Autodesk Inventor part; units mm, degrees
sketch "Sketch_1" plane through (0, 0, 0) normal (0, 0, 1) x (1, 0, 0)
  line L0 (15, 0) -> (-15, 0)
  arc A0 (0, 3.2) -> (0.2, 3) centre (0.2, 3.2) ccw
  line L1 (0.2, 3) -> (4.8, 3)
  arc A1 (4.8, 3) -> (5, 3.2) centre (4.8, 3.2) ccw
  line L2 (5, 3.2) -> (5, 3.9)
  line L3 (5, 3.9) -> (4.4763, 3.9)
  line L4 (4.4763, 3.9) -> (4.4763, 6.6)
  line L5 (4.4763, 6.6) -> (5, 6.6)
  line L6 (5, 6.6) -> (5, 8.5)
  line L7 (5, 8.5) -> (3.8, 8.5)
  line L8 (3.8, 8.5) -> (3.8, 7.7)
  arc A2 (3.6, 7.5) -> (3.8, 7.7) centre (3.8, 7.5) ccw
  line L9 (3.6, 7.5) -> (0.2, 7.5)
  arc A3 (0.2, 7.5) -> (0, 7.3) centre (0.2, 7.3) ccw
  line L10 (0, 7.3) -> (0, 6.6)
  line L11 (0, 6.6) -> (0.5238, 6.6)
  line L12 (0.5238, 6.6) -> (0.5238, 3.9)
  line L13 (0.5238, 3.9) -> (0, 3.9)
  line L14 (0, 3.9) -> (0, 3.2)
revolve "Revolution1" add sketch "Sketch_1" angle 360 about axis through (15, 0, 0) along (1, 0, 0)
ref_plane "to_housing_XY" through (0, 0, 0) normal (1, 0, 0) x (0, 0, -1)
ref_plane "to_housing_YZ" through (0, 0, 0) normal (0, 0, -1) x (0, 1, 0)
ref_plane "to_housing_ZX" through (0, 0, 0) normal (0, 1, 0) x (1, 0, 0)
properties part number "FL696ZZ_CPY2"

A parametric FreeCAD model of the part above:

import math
import FreeCAD as App
import Part
import Sketcher
from FreeCAD import Vector
Q = App.Units.Quantity

doc = App.newDocument("Part")
body = doc.addObject("PartDesign::Body", "Body")

# Sketch on XY plane
sketch1 = body.newObject("Sketcher::SketchObject", "Sketch")
sketch1.AttachmentSupport = (doc.getObject("XY_Plane"), [""])
sketch1.MapMode = "FlatFace"
sketch1.addGeometry([
    Part.LineSegment(Vector(0, 3.9, 0), Vector(0, 3.2, 0)),  # 0
    Part.ArcOfCircle(Part.Circle(Vector(0.2, 3.2, 0), Vector(0, 0, 1), 0.2), math.radians(180), math.radians(270)),  # 1
    Part.LineSegment(Vector(0.2, 3, 0), Vector(4.8, 3, 0)),  # 2
    Part.ArcOfCircle(Part.Circle(Vector(4.8, 3.2, 0), Vector(0, 0, 1), 0.2), math.radians(-90), math.radians(0)),  # 3
    Part.LineSegment(Vector(5, 3.2, 0), Vector(5, 3.9, 0)),  # 4
    Part.LineSegment(Vector(5, 3.9, 0), Vector(4.48, 3.9, 0)),  # 5
    Part.LineSegment(Vector(4.48, 3.9, 0), Vector(4.48, 6.6, 0)),  # 6
    Part.LineSegment(Vector(4.48, 6.6, 0), Vector(5, 6.6, 0)),  # 7
    Part.LineSegment(Vector(5, 6.6, 0), Vector(5, 8.5, 0)),  # 8
    Part.LineSegment(Vector(5, 8.5, 0), Vector(3.8, 8.5, 0)),  # 9
    Part.LineSegment(Vector(3.8, 8.5, 0), Vector(3.8, 7.7, 0)),  # 10
    Part.ArcOfCircle(Part.Circle(Vector(3.8, 7.5, 0), Vector(0, 0, 1), 0.2), math.radians(180), math.radians(450)),  # 11
    Part.LineSegment(Vector(3.6, 7.5, 0), Vector(0.2, 7.5, 0)),  # 12
    Part.ArcOfCircle(Part.Circle(Vector(0.2, 7.3, 0), Vector(0, 0, 1), 0.2), math.radians(90), math.radians(180)),  # 13
    Part.LineSegment(Vector(0, 7.3, 0), Vector(0, 6.6, 0)),  # 14
    Part.LineSegment(Vector(0, 6.6, 0), Vector(0.52, 6.6, 0)),  # 15
    Part.LineSegment(Vector(0.52, 6.6, 0), Vector(0.52, 3.9, 0)),  # 16
    Part.LineSegment(Vector(0.52, 3.9, 0), Vector(0, 3.9, 0)),  # 17
], False)
sketch1.addConstraint([
    Sketcher.Constraint("Tangent", 0, 2, 1, 1),
    Sketcher.Constraint("Tangent", 1, 2, 2, 1),
    Sketcher.Constraint("Tangent", 2, 2, 3, 1),
    Sketcher.Constraint("Tangent", 3, 2, 4, 1),
    Sketcher.Constraint("Coincident", 4, 2, 5, 1),
    Sketcher.Constraint("Coincident", 5, 2, 6, 1),
    Sketcher.Constraint("Coincident", 6, 2, 7, 1),
    Sketcher.Constraint("Coincident", 7, 2, 8, 1),
    Sketcher.Constraint("Coincident", 8, 2, 9, 1),
    Sketcher.Constraint("Coincident", 9, 2, 10, 1),
    Sketcher.Constraint("Coincident", 10, 2, 11, 2),
    Sketcher.Constraint("Coincident", 11, 1, 12, 1),
    Sketcher.Constraint("Tangent", 12, 2, 13, 1),
    Sketcher.Constraint("Tangent", 13, 2, 14, 1),
    Sketcher.Constraint("Coincident", 14, 2, 15, 1),
    Sketcher.Constraint("Coincident", 15, 2, 16, 1),
    Sketcher.Constraint("Coincident", 16, 2, 17, 1),
    Sketcher.Constraint("Coincident", 17, 2, 0, 1),
    Sketcher.Constraint("Vertical", 0),
    Sketcher.Constraint("Horizontal", 2),
    Sketcher.Constraint("Vertical", 4),
    Sketcher.Constraint("Horizontal", 5),
    Sketcher.Constraint("Vertical", 6),
    Sketcher.Constraint("Horizontal", 7),
    Sketcher.Constraint("Vertical", 8),
    Sketcher.Constraint("Horizontal", 9),
    Sketcher.Constraint("Vertical", 10),
    Sketcher.Constraint("Horizontal", 12),
    Sketcher.Constraint("Vertical", 14),
    Sketcher.Constraint("Horizontal", 15),
    Sketcher.Constraint("Vertical", 16),
    Sketcher.Constraint("Horizontal", 17),
    Sketcher.Constraint("Equal", 1, 3),
    Sketcher.Constraint("Equal", 3, 11),
    Sketcher.Constraint("Equal", 11, 13),
    Sketcher.Constraint("PointOnObject", 0, 2, -2),
    Sketcher.Constraint("PointOnObject", 13, 2, -2),
    Sketcher.Constraint("Horizontal", 7, 2, 14, 2),
    Sketcher.Constraint("Horizontal", 5, 2, 16, 2),
    Sketcher.Constraint("Vertical", 4, 2, 7, 2),
    Sketcher.Constraint("Vertical", 11, 3, 9, 2),
    Sketcher.Constraint("Equal", 7, 15),
    Sketcher.Constraint("Equal", 4, 14),
    Sketcher.Constraint("Radius", 1, Q("0.2 mm")),
    Sketcher.Constraint("DistanceX", 2, 1, 2, 2, Q("4.6 mm")),
    Sketcher.Constraint("DistanceX", 9, 2, 9, 1, Q("1.2 mm")),
    Sketcher.Constraint("DistanceY", 0, 2, 0, 1, Q("0.7 mm")),
    Sketcher.Constraint("DistanceY", 6, 1, 6, 2, Q("2.7 mm")),
    Sketcher.Constraint("DistanceY", 8, 1, 8, 2, Q("1.9 mm")),
    Sketcher.Constraint("DistanceY", 10, 2, 10, 1, Q("0.8 mm")),
    Sketcher.Constraint("DistanceY", -1, 1, 1, 2, Q("3 mm")),
    Sketcher.Constraint("DistanceX", 5, 2, 5, 1, Q("0.5237 mm")),
])
revolution = body.newObject("PartDesign::Revolution", "Revolution")
revolution.Profile = sketch1
revolution.ReferenceAxis = (sketch1, ["H_Axis"])
revolution.Angle = 360

doc.recompute()
